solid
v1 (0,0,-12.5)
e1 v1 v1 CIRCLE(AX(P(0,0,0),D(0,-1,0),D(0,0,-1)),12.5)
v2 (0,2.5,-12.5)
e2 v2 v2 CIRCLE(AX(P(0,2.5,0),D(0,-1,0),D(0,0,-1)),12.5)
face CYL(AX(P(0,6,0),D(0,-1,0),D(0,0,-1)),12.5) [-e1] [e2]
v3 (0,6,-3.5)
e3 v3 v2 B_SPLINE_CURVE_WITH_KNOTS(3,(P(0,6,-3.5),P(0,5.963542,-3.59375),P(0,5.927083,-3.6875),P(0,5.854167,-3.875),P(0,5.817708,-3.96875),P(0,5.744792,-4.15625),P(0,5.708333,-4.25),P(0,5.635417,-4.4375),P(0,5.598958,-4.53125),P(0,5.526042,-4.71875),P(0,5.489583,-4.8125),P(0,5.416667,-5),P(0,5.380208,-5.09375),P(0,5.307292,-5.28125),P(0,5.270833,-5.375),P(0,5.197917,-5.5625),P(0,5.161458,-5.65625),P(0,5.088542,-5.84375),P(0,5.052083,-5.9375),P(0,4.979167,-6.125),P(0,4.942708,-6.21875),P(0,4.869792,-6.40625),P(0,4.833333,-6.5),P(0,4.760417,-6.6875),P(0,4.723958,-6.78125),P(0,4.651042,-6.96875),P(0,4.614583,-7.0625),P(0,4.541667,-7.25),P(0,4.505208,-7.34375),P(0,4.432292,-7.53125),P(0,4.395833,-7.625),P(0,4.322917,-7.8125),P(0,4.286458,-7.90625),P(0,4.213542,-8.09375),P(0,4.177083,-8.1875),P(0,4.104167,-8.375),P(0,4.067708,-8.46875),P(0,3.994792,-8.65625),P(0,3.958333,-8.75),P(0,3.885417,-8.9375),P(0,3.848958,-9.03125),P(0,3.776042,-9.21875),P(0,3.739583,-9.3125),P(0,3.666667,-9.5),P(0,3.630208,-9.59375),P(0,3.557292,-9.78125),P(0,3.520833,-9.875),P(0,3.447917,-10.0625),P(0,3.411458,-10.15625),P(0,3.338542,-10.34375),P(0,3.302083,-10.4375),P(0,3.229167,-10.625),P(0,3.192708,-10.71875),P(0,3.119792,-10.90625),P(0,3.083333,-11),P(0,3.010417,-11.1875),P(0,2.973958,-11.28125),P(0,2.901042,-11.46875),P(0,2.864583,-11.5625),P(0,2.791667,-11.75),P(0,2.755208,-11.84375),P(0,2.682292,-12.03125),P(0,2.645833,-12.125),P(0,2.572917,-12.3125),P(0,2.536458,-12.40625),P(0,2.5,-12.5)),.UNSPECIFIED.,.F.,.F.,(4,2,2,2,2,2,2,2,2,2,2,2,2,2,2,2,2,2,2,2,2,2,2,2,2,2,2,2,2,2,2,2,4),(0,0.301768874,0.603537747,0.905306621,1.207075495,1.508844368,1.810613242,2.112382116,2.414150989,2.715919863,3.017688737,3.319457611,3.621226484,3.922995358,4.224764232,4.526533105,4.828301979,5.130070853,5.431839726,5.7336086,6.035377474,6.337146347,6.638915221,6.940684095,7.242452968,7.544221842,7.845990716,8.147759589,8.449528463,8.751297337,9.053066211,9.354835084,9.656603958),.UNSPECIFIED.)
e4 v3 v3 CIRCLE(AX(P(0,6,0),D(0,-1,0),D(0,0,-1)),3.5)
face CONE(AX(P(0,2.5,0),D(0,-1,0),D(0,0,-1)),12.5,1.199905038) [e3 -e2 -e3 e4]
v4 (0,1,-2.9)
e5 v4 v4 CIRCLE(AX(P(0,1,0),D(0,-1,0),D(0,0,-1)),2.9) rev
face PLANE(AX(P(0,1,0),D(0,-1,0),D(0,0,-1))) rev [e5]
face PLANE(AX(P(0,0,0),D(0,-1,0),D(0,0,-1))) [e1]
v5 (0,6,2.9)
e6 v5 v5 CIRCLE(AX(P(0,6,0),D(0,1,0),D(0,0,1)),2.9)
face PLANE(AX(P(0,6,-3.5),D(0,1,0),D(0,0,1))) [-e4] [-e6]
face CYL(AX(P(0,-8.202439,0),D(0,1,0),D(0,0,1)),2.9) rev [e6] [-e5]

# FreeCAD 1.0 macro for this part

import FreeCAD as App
import Part
import Sketcher

V = App.Vector
Q = App.Units.Quantity


def add_polygon(sketch, points):
    """Adds a closed chain of lines whose ends are joined by coincident constraints."""
    first, n = sketch.GeometryCount, len(points)
    for a, b in zip(points, points[1:] + points[:1]):
        sketch.addGeometry(Part.LineSegment(App.Vector(*a, 0), App.Vector(*b, 0)), False)
    for i in range(n):
        sketch.addConstraint(Sketcher.Constraint("Coincident", first + i, 2, first + (i + 1) % n, 1))

doc = App.newDocument("Part")
params = doc.addObject("Spreadsheet::Sheet", "Params")
for row, (alias, value) in enumerate([
    ("sketch1_width", "6 mm"),
    ("sketch1_width2", "2.5 mm"),
    ("sketch1_height", "12.5 mm"),
    ("sketch1_height2", "3.5 mm"),
    ("revolution_angle", "360 deg"),
    ("sketch2_diameter", "5.8 mm"),
    ("pocket1_length", "5 mm"),
], start=1):
    params.set(f"A{row}", alias)
    params.set(f"B{row}", "=" + value)
    params.setAlias(f"B{row}", alias)

body = doc.addObject("PartDesign::Body", "Body")

sketch1 = body.newObject("Sketcher::SketchObject", "Sketch")
sketch1.AttachmentSupport = (doc.getObject("YZ_Plane"), [""])
sketch1.MapMode = "FlatFace"
add_polygon(sketch1, [(0, 0), (0, -12.5), (2.5, -12.5), (6, -3.5), (6, 0)])
sketch1.addConstraint([
    Sketcher.Constraint("Vertical", 0),
    Sketcher.Constraint("Horizontal", 1),
    Sketcher.Constraint("Vertical", 3),
    Sketcher.Constraint("Horizontal", 4),
    Sketcher.Constraint("Coincident", 4, 2, -1, 1),
    Sketcher.Constraint("DistanceX", 4, 2, 4, 1, Q("6 mm")),
    Sketcher.Constraint("DistanceX", 1, 1, 1, 2, Q("2.5 mm")),
    Sketcher.Constraint("DistanceY", 0, 2, 0, 1, Q("12.5 mm")),
    Sketcher.Constraint("DistanceY", 3, 1, 3, 2, Q("3.5 mm")),
])
sketch1.setExpression("Constraints[10]", "Params.sketch1_width")
sketch1.setExpression("Constraints[11]", "Params.sketch1_width2")
sketch1.setExpression("Constraints[12]", "Params.sketch1_height")
sketch1.setExpression("Constraints[13]", "Params.sketch1_height2")
revolution = body.newObject("PartDesign::Revolution", "Revolution")
revolution.Profile = sketch1
revolution.ReferenceAxis = (sketch1, ["H_Axis"])
revolution.setExpression("Angle", "Params.revolution_angle")

sketch2 = body.newObject("Sketcher::SketchObject", "Sketch001")
sketch2.AttachmentSupport = (doc.getObject("XZ_Plane"), [""])
sketch2.MapMode = "FlatFace"
sketch2.AttachmentOffset = App.Placement(V(0, 0, -6), App.Rotation())
sketch2.addGeometry(Part.Circle(V(0, 0, 0), V(0, 0, 1), 2.9), False)
sketch2.addConstraint([
    Sketcher.Constraint("Coincident", 0, 3, -1, 1),
    Sketcher.Constraint("Diameter", 0, Q("5.8 mm")),
])
sketch2.setExpression("Constraints[1]", "Params.sketch2_diameter")
pocket1 = body.newObject("PartDesign::Pocket", "Pocket")
pocket1.Profile = sketch2
pocket1.setExpression("Length", "Params.pocket1_length")
pocket1.Reversed = True

doc.recompute()
